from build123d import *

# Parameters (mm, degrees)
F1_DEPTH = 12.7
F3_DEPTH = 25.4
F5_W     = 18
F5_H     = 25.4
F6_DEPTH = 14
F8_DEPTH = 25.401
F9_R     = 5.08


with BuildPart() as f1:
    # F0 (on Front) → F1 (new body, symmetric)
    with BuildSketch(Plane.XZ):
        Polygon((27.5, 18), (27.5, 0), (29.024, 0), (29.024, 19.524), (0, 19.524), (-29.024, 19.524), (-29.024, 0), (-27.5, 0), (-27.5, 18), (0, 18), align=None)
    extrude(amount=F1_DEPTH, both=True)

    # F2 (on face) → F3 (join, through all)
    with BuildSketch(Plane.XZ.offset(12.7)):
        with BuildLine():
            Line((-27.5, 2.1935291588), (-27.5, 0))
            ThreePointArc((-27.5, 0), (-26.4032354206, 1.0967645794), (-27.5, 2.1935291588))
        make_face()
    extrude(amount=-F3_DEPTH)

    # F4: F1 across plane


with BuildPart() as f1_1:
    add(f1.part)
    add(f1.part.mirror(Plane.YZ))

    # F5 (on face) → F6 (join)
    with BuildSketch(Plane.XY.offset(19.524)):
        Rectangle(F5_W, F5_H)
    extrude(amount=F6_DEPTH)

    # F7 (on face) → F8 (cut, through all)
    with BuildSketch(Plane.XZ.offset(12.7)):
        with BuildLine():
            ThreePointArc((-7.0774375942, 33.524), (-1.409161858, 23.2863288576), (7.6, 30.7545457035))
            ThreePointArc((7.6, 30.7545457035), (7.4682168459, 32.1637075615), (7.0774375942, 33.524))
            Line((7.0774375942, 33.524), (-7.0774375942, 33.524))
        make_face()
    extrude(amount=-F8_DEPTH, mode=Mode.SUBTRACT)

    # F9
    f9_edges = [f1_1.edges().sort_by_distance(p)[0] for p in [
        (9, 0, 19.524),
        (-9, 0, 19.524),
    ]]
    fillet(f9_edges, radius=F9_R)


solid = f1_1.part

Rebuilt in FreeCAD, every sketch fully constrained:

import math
import FreeCAD as App
import Part
import Sketcher
from FreeCAD import Vector
Q = App.Units.Quantity


def edges_at(feature, points):
    """Names of the edges that pass closest to the given points."""
    edges = feature.Shape.Edges
    near = lambda p: min(range(len(edges)), key=lambda i: edges[i].distToShape(Part.Vertex(*p))[0])
    return sorted({f"Edge{near(p) + 1}" for p in points})


def add_polygon(sketch, points):
    """Adds a closed chain of lines whose ends are joined by coincident constraints."""
    first, n = sketch.GeometryCount, len(points)
    for a, b in zip(points, points[1:] + points[:1]):
        sketch.addGeometry(Part.LineSegment(App.Vector(*a, 0), App.Vector(*b, 0)), False)
    for i in range(n):
        sketch.addConstraint(Sketcher.Constraint("Coincident", first + i, 2, first + (i + 1) % n, 1))

doc = App.newDocument("Part")
body = doc.addObject("PartDesign::Body", "Body")

# Sketch on XZ plane
sketch1 = body.newObject("Sketcher::SketchObject", "Sketch")
sketch1.AttachmentSupport = (doc.getObject("XZ_Plane"), [""])
sketch1.MapMode = "FlatFace"
add_polygon(sketch1, [(27.5, 18), (27.5, 0), (29, 0), (29, 19.5), (-29, 19.5), (-29, 0), (-27.5, 0), (-27.5, 18)])  # lines 0-7
sketch1.addConstraint([
    Sketcher.Constraint("Vertical", 0),
    Sketcher.Constraint("Horizontal", 1),
    Sketcher.Constraint("Vertical", 2),
    Sketcher.Constraint("Horizontal", 3),
    Sketcher.Constraint("Vertical", 4),
    Sketcher.Constraint("Horizontal", 5),
    Sketcher.Constraint("Vertical", 6),
    Sketcher.Constraint("Horizontal", 7),
    Sketcher.Constraint("Symmetric", 1, 2, 4, 2, -1, 1),
    Sketcher.Constraint("Symmetric", 0, 2, 5, 2, -2),
    Sketcher.Constraint("DistanceX", 7, 1, 7, 2, Q("55 mm")),
    Sketcher.Constraint("DistanceY", 0, 2, 0, 1, Q("18 mm")),
    Sketcher.Constraint("DistanceX", 1, 1, 1, 2, Q("1.524 mm")),
    Sketcher.Constraint("DistanceY", 2, 1, 2, 2, Q("19.524 mm")),
])
pad1 = body.newObject("PartDesign::Pad", "Pad")
pad1.Profile = sketch1
pad1.Length = 25.4
pad1.Midplane = True

# Sketch on XZ plane
sketch2 = body.newObject("Sketcher::SketchObject", "Sketch001")
sketch2.AttachmentSupport = (doc.getObject("XZ_Plane"), [""])
sketch2.MapMode = "FlatFace"
sketch2.AttachmentOffset = App.Placement(Vector(0, 0, 12.7), App.Rotation())
sketch2.addGeometry([
    Part.LineSegment(Vector(-27.5, 2.2, 0), Vector(-27.5, 0, 0)),
    Part.ArcOfCircle(Part.Circle(Vector(-27.5, 1.1, 0), Vector(0, 0, 1), 1.1), math.radians(-90), math.radians(90)),
], False)
sketch2.addConstraint([
    Sketcher.Constraint("Coincident", 0, 1, 1, 2),
    Sketcher.Constraint("Coincident", 1, 1, 0, 2),
    Sketcher.Constraint("Vertical", 0),
    Sketcher.Constraint("PointOnObject", 1, 1, -1),
    Sketcher.Constraint("Vertical", 1, 3, 0, 1),
    Sketcher.Constraint("DistanceX", 1, 3, -1, 1, Q("27.5 mm")),
    Sketcher.Constraint("Radius", 1, Q("1.096765 mm")),
])
pad2 = body.newObject("PartDesign::Pad", "Pad001")
pad2.Profile = sketch2
pad2.Length = 25.4
pad2.Reversed = True
body2 = doc.addObject("PartDesign::Body", "Body001")
doc.recompute()

body2.BaseFeature = body
doc.recompute()

mirroring = doc.addObject("Part::Mirroring", "Mirroring")
mirroring.Source = body
mirroring.Base = Vector(0, 0, 0)
mirroring.Normal = Vector(1, 0, 0)
body3 = doc.addObject("PartDesign::Body", "Body002")
body3.BaseFeature = mirroring
boolean = body2.newObject("PartDesign::Boolean", "Boolean")
boolean.Type = "Fuse"
boolean.addObjects([body3])
doc.recompute()

# Sketch on XY plane
sketch3 = body2.newObject("Sketcher::SketchObject", "Sketch002")
sketch3.AttachmentSupport = (doc.getObject("XY_Plane001"), [""])
sketch3.MapMode = "FlatFace"
sketch3.AttachmentOffset = App.Placement(Vector(0, 0, 19.524), App.Rotation())
add_polygon(sketch3, [(-9, 13), (-9, -13), (9, -13), (9, 13)])  # lines 0-3
sketch3.addConstraint([
    Sketcher.Constraint("Vertical", 0),
    Sketcher.Constraint("Horizontal", 1),
    Sketcher.Constraint("Vertical", 2),
    Sketcher.Constraint("Horizontal", 3),
    Sketcher.Constraint("Symmetric", 0, 2, 2, 2, -1, 1),
    Sketcher.Constraint("DistanceX", 1, 1, 1, 2, Q("18 mm")),
    Sketcher.Constraint("DistanceY", 0, 2, 0, 1, Q("25.4 mm")),
])
pad3 = body2.newObject("PartDesign::Pad", "Pad002")
pad3.Profile = sketch3
pad3.Length = 14

# Sketch on XZ plane
sketch4 = body2.newObject("Sketcher::SketchObject", "Sketch003")
sketch4.AttachmentSupport = (doc.getObject("XZ_Plane001"), [""])
sketch4.MapMode = "FlatFace"
sketch4.AttachmentOffset = App.Placement(Vector(0, 0, 12.7), App.Rotation())
sketch4.addGeometry([
    Part.ArcOfCircle(Part.Circle(Vector(0, 30.8, 0), Vector(0, 0, 1), 7.6), math.radians(159), math.radians(360)),
    Part.ArcOfCircle(Part.Circle(Vector(0, 30.8, 0), Vector(0, 0, 1), 7.6), math.radians(0), math.radians(21)),
    Part.LineSegment(Vector(7.1, 33.5, 0), Vector(-7.1, 33.5, 0)),
], False)
sketch4.addConstraint([
    Sketcher.Constraint("Tangent", 0, 2, 1, 1),
    Sketcher.Constraint("Coincident", 1, 2, 2, 1),
    Sketcher.Constraint("Coincident", 2, 2, 0, 1),
    Sketcher.Constraint("Horizontal", 2),
    Sketcher.Constraint("Equal", 0, 1),
    Sketcher.Constraint("PointOnObject", 0, 3, -2),
    Sketcher.Constraint("Horizontal", 1, 3, 0, 2),
    Sketcher.Constraint("Radius", 0, Q("7.6 mm")),
    Sketcher.Constraint("DistanceY", -1, 1, 1, 2, Q("33.524 mm")),
    Sketcher.Constraint("DistanceX", 2, 2, 2, 1, Q("14.154875 mm")),
])
pocket1 = body2.newObject("PartDesign::Pocket", "Pocket")
pocket1.Profile = sketch4
pocket1.Type = "ThroughAll"
doc.recompute()

fillet = body2.newObject("PartDesign::Fillet", "Fillet")
fillet.Base = (pocket1, edges_at(pocket1, [(9, 0, 19.524), (-9, 0, 19.524)]))
fillet.Radius = 5.08
mirroring.Visibility = False

doc.recompute()
